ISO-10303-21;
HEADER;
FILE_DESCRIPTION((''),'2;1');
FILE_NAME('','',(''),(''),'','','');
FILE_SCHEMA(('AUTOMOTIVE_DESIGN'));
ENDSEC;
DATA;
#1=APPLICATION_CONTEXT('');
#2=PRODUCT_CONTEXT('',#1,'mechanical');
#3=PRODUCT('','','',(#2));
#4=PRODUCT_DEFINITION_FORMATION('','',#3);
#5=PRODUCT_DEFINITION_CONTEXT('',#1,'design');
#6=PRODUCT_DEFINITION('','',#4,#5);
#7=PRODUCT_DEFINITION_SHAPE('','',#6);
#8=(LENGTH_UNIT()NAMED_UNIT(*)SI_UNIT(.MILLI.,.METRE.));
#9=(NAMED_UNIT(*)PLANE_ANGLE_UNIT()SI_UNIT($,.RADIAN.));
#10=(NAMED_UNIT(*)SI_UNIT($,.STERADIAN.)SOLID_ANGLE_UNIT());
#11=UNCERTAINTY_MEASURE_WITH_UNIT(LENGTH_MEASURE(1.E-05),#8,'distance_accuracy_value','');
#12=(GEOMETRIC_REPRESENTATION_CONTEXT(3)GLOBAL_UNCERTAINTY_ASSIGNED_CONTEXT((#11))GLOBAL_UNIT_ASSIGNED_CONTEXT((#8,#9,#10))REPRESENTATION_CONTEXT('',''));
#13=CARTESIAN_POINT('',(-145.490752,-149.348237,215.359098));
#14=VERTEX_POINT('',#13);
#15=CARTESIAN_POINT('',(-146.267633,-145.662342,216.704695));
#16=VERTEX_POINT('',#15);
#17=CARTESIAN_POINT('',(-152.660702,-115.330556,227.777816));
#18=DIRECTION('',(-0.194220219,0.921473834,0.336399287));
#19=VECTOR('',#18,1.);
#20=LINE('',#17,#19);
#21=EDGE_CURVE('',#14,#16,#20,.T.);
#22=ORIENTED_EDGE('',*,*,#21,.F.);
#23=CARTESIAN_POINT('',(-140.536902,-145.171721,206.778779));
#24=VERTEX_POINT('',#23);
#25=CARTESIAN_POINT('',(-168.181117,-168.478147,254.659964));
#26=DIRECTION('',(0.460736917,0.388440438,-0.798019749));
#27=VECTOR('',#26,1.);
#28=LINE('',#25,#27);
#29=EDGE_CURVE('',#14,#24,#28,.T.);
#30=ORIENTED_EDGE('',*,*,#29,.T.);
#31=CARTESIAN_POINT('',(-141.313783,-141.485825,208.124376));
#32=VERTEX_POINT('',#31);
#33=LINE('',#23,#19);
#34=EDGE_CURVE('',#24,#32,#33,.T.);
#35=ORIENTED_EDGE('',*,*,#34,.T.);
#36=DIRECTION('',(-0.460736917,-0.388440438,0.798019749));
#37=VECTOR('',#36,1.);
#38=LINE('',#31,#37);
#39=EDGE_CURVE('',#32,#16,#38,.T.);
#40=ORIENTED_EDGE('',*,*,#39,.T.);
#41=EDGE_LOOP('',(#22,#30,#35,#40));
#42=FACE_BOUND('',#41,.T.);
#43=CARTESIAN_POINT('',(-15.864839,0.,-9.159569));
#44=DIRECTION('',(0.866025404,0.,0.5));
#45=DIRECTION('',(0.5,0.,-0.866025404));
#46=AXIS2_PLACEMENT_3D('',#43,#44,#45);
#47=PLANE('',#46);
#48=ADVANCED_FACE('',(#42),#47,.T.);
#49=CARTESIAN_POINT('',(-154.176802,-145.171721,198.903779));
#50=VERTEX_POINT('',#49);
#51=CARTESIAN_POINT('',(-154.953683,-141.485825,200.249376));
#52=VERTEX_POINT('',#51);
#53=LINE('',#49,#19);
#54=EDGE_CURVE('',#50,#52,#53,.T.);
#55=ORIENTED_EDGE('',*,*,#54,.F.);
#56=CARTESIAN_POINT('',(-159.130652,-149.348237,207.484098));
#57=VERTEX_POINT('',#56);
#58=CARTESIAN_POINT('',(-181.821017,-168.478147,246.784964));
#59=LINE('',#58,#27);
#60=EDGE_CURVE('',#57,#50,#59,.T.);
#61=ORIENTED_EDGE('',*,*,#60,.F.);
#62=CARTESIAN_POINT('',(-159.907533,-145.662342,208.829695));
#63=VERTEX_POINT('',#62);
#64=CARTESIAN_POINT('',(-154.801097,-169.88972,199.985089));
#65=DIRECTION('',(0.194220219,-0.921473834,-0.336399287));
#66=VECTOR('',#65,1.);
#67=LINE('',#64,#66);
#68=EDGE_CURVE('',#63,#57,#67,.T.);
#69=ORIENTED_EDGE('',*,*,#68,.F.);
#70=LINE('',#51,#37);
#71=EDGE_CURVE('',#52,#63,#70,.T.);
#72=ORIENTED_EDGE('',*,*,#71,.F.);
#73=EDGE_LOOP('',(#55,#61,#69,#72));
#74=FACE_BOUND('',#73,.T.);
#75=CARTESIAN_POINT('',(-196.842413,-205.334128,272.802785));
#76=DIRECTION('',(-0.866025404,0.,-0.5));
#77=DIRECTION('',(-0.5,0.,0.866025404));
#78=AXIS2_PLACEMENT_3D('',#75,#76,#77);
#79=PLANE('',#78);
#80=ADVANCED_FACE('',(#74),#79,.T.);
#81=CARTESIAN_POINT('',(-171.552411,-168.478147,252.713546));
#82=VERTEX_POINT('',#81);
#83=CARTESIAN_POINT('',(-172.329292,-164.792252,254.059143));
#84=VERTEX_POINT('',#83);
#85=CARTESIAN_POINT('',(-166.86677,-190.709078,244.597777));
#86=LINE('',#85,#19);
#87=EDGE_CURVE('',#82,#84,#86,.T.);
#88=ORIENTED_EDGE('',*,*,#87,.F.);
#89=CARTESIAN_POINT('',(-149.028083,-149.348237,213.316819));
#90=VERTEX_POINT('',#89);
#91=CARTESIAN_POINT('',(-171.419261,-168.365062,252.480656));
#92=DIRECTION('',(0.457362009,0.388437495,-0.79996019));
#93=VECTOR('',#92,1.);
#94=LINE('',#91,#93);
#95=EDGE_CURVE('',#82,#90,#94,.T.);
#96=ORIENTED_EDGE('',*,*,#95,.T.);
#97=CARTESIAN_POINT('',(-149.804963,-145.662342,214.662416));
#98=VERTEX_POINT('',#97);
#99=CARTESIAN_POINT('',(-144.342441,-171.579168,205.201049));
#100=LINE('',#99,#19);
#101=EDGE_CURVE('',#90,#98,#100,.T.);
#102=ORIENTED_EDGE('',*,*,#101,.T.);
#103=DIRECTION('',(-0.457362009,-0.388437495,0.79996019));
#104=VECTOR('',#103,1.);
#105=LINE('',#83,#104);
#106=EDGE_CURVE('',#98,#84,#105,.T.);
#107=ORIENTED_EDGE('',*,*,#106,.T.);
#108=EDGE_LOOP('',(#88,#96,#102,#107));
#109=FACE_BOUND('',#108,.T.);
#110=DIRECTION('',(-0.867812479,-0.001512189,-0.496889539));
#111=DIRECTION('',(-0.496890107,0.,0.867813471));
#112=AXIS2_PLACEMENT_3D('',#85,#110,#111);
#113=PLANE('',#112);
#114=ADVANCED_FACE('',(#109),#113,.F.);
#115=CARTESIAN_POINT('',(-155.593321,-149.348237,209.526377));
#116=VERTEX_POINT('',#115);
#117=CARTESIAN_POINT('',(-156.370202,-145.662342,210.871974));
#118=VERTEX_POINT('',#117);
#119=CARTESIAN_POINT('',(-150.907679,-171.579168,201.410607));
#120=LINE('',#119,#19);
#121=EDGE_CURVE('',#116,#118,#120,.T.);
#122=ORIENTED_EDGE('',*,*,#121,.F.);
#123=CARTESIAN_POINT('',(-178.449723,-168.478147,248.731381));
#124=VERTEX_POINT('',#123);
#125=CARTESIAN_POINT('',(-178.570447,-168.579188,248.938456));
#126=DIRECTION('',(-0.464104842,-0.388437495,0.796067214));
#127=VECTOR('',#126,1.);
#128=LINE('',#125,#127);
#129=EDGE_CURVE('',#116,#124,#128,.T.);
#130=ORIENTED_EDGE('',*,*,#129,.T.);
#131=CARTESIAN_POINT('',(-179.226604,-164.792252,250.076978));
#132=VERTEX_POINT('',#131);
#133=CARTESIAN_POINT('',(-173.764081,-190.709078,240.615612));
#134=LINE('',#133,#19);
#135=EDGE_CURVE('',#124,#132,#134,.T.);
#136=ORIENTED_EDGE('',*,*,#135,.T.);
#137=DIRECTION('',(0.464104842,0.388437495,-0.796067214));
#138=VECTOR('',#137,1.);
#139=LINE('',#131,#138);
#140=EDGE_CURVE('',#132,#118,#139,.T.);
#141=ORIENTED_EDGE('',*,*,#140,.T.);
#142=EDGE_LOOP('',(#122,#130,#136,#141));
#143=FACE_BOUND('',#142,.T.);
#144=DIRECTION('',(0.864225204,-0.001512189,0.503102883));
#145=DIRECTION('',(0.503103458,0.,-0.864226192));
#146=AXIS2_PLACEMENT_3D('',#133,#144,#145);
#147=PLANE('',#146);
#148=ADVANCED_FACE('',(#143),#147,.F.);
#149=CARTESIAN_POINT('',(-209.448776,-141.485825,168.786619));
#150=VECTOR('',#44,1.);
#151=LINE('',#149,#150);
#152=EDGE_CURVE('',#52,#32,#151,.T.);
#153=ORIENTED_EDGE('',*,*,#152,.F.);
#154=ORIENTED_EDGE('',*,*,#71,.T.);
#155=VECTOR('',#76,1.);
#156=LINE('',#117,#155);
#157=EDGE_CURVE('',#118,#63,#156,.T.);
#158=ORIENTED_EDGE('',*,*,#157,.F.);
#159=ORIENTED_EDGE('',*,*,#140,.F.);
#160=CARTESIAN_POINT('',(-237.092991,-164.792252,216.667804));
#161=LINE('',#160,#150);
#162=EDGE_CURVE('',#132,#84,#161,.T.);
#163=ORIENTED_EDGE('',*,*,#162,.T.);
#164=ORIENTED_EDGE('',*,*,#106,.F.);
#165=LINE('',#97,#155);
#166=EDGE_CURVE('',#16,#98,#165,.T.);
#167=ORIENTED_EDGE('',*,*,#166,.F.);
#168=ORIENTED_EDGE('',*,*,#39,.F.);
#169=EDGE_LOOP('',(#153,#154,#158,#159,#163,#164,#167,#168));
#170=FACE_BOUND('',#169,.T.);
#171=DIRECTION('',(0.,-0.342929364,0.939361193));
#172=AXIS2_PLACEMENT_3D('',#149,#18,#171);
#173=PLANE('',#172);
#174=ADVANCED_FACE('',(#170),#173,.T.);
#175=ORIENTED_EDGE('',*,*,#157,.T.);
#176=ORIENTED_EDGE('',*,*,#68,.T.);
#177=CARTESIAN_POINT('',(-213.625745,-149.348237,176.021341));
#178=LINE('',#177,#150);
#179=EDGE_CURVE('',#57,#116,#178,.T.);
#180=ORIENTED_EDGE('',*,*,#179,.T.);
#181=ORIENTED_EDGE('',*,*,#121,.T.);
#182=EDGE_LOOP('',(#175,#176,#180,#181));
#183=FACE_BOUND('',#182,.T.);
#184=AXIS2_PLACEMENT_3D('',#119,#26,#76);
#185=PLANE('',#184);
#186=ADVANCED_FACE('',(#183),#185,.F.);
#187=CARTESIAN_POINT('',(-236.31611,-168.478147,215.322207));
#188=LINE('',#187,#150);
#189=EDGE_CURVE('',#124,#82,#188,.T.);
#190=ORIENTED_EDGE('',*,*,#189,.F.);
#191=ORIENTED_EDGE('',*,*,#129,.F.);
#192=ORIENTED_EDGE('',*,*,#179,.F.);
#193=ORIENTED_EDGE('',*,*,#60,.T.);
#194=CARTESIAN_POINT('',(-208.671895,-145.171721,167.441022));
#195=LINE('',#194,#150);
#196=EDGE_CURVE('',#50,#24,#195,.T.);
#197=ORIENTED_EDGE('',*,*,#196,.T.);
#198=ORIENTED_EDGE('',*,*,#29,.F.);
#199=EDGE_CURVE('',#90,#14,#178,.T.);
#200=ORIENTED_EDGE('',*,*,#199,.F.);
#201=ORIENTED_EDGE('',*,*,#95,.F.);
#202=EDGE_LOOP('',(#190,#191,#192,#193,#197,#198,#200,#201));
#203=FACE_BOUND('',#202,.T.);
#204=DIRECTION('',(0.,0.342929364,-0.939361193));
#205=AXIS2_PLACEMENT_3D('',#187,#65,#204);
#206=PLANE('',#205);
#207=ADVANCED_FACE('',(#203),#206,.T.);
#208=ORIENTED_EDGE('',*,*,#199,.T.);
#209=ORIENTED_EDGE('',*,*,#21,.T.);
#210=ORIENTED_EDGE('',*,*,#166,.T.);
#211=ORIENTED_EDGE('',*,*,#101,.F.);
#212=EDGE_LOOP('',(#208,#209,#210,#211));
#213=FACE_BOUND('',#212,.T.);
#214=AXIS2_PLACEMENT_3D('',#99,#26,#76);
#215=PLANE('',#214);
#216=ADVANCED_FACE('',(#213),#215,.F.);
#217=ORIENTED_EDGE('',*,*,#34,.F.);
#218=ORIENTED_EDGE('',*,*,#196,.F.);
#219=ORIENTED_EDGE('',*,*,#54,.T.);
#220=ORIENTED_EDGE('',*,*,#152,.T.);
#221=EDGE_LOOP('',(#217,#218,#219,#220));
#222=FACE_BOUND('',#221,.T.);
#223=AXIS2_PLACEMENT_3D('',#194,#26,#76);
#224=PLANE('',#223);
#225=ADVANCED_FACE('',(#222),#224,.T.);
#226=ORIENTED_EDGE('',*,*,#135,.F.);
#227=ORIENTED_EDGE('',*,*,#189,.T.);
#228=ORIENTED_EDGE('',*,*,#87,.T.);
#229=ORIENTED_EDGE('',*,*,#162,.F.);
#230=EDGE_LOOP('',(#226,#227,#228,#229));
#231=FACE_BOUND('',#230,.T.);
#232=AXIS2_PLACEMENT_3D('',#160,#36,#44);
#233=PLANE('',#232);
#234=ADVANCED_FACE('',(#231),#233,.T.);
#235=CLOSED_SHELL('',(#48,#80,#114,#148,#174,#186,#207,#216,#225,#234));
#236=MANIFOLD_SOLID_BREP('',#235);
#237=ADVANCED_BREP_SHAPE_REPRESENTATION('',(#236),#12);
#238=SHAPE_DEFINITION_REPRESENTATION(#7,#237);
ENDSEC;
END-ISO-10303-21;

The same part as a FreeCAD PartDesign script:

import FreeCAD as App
import Part
import Sketcher

V = App.Vector
Q = App.Units.Quantity


def add_polygon(sketch, points):
    """Adds a closed chain of lines whose ends are joined by coincident constraints."""
    first, n = sketch.GeometryCount, len(points)
    for a, b in zip(points, points[1:] + points[:1]):
        sketch.addGeometry(Part.LineSegment(App.Vector(*a, 0), App.Vector(*b, 0)), False)
    for i in range(n):
        sketch.addConstraint(Sketcher.Constraint("Coincident", first + i, 2, first + (i + 1) % n, 1))

doc = App.newDocument("Part")
params = doc.addObject("Spreadsheet::Sheet", "Params")
for row, (alias, value) in enumerate([
    ("sketch1_length", "60 mm"),
    ("sketch1_length2", "4 mm"),
    ("pad1_length", "15.75 mm"),
], start=1):
    params.set(f"A{row}", alias)
    params.set(f"B{row}", "=" + value)
    params.setAlias(f"B{row}", alias)

body = doc.addObject("PartDesign::Body", "Body")

sketch1 = doc.addObject("Sketcher::SketchObject", "Sketch")
body.addObject(sketch1)
sketch1.Placement = App.Placement(V(-15.864839, 0, -9.159569), App.Rotation(V(0.5, 0, -0.866025404), V(0, 1, 0), V(0.866025404, 0, 0.5), "ZXY"))
add_polygon(sketch1, [(-250.897888, -141.485826), (-306.186318, -164.792252), (-304.632557, -168.478147), (-249.344127, -145.171721)])
sketch1.addConstraint([
    Sketcher.Constraint("Perpendicular", 0, 1),
    Sketcher.Constraint("Perpendicular", 1, 2),
    Sketcher.Constraint("Perpendicular", 2, 3),
    Sketcher.Constraint("Distance", 0, Q("60 mm")),
    Sketcher.Constraint("Distance", 1, Q("4 mm")),
    Sketcher.Constraint("DistanceX", 0, 2, -1, 1, Q("306.186318 mm")),
    Sketcher.Constraint("DistanceY", 0, 2, -1, 1, Q("164.792252 mm")),
    Sketcher.Constraint("DistanceY", 2, 2, -1, 1, Q("145.171721 mm")),
])
sketch1.setExpression("Constraints[7]", "Params.sketch1_length")
sketch1.setExpression("Constraints[8]", "Params.sketch1_length2")
pad1 = doc.addObject("PartDesign::Pad", "Pad")
body.addObject(pad1)
pad1.Profile = sketch1
pad1.setExpression("Length", "Params.pad1_length")
pad1.Reversed = True

sketch2 = doc.addObject("Sketcher::SketchObject", "Sketch001")
body.addObject(sketch2)
sketch2.Placement = App.Placement(V(6.393069, -30.331786, -11.073121), App.Rotation(V(0.980957954, 0.182442937, 0.066603816), V(0, 0.342929364, -0.939361194), V(-0.194220219, 0.921473834, 0.336399287), "ZXY"))
add_polygon(sketch2, [(-192.659601, -289.596322), (-189.222864, -291.424711), (-165.922781, -248.036844), (-175.386751, -243.001887), (-198.517575, -286.479803)])
add_polygon(sketch2, [(-172.896953, -300.110311), (-149.76613, -256.632395), (-159.2301, -251.597438), (-182.191664, -295.165403), (-178.754927, -296.993792)])
sketch2.addConstraint([
    Sketcher.Constraint("Parallel", 0, 2),
    Sketcher.Constraint("Perpendicular", 2, 3),
    Sketcher.Constraint("Perpendicular", 3, 4),
    Sketcher.Constraint("Perpendicular", 4, 5),
    Sketcher.Constraint("Perpendicular", 5, 6),
    Sketcher.Constraint("Parallel", 6, 8),
    Sketcher.Constraint("Parallel", 8, 9),
    Sketcher.Constraint("Equal", 3, 5),
    Sketcher.Constraint("Equal", 2, 6),
    Sketcher.Constraint("Equal", 1, 7),
    Sketcher.Constraint("Equal", 0, 8),
    Sketcher.Constraint("Distance", 4, Q("6.635401 mm")),
    Sketcher.Constraint("DistanceX", 4, 2, -1, 1, Q("192.659601 mm")),
    Sketcher.Constraint("DistanceX", 6, 2, -1, 1, Q("159.2301 mm")),
    Sketcher.Constraint("DistanceX", 0, 2, 7, 2, Q("7.0312 mm")),
    Sketcher.Constraint("DistanceY", 7, 2, 3, 2, Q("8.685599 mm")),
    Sketcher.Constraint("Distance", 1, Q("49.24836 mm")),
    Sketcher.Constraint("Distance", 2, Q("10.719959 mm")),
    Sketcher.Constraint("DistanceY", 0, 2, -1, 1, Q("291.424711 mm")),
    Sketcher.Constraint("DistanceX", 1, 2, -1, 1, Q("165.922781 mm")),
])
pocket1 = doc.addObject("PartDesign::Pocket", "Pocket")
body.addObject(pocket1)
pocket1.Profile = sketch2
pocket1.Type = "ThroughAll"

doc.recompute()
